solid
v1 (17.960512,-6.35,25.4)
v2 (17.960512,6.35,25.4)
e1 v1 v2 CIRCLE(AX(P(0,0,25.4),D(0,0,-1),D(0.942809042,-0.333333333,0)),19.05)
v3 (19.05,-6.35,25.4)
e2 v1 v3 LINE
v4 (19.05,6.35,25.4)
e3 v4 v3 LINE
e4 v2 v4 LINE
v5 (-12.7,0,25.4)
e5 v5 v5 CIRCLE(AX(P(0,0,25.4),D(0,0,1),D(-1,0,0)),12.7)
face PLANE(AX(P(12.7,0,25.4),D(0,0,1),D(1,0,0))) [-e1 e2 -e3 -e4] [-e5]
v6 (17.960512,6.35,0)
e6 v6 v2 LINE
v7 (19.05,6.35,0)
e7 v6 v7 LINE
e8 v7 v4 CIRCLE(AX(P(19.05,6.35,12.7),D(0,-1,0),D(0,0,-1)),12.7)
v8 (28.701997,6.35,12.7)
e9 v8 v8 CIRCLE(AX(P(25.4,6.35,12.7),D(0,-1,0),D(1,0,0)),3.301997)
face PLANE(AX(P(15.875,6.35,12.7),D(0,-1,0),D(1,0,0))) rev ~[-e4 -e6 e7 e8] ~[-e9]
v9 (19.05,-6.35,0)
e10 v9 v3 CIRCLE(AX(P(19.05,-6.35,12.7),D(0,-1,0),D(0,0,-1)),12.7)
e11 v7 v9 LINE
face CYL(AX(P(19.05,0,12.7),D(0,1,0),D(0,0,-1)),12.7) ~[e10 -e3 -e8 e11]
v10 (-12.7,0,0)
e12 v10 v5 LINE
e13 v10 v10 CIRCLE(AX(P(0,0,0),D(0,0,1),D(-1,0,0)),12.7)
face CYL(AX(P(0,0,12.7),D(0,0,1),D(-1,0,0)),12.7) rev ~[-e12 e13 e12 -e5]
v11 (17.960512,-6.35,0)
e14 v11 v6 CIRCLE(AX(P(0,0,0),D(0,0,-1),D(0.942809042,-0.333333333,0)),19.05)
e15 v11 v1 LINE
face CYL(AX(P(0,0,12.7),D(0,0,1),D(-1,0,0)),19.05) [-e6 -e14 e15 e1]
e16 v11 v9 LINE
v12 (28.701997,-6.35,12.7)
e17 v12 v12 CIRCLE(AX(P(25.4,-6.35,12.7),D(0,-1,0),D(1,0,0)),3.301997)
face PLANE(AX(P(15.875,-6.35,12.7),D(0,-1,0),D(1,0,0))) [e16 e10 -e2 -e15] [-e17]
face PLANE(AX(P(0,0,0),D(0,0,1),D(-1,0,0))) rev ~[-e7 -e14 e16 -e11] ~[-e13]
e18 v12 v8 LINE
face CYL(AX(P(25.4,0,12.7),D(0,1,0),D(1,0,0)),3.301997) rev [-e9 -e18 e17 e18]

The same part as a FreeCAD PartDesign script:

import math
import FreeCAD as App
import Part
import Sketcher
Q = App.Units.Quantity

doc = App.newDocument("Part")
body = doc.addObject("PartDesign::Body", "Body")

# Sketch on XZ plane
sketch1 = body.newObject("Sketcher::SketchObject", "Sketch")
sketch1.AttachmentSupport = (doc.getObject("XZ_Plane"), [""])
sketch1.MapMode = "FlatFace"
sketch1.addGeometry([
    Part.LineSegment(App.Vector(-19, 25, 0), App.Vector(-19, 0, 0)),
    Part.LineSegment(App.Vector(-19, 0, 0), App.Vector(-13, 0, 0)),
    Part.LineSegment(App.Vector(-13, 0, 0), App.Vector(-13, 25, 0)),
    Part.LineSegment(App.Vector(-13, 25, 0), App.Vector(-19, 25, 0)),
], False)
sketch1.addConstraint([
    Sketcher.Constraint("Coincident", 0, 2, 1, 1),
    Sketcher.Constraint("Coincident", 1, 2, 2, 1),
    Sketcher.Constraint("Coincident", 2, 2, 3, 1),
    Sketcher.Constraint("Coincident", 3, 2, 0, 1),
    Sketcher.Constraint("Vertical", 0),
    Sketcher.Constraint("Horizontal", 1),
    Sketcher.Constraint("Vertical", 2),
    Sketcher.Constraint("Horizontal", 3),
    Sketcher.Constraint("PointOnObject", 0, 2, -1),
    Sketcher.Constraint("DistanceY", 0, 2, 0, 1, Q("1 in")),
    Sketcher.Constraint("DistanceX", 1, 1, 1, 2, Q("0.25 in")),
    Sketcher.Constraint("DistanceX", 1, 2, -1, 1, Q("0.5 in")),
])
revolution = body.newObject("PartDesign::Revolution", "Revolution")
revolution.Profile = sketch1
revolution.ReferenceAxis = (sketch1, ["V_Axis"])
revolution.Angle = 360

# Sketch on XZ plane
sketch2 = body.newObject("Sketcher::SketchObject", "Sketch001")
sketch2.AttachmentSupport = (doc.getObject("XZ_Plane"), [""])
sketch2.MapMode = "FlatFace"
sketch2.addGeometry([
    Part.LineSegment(App.Vector(12.7, 25.4, 0), App.Vector(12.7, 0, 0)),  # 0
    Part.LineSegment(App.Vector(12.7, 0, 0), App.Vector(19.1, 0, 0)),  # 1
    Part.ArcOfCircle(Part.Circle(App.Vector(19.1, 12.7, 0), App.Vector(0, 0, 1), 12.7), math.radians(-90), math.radians(90)),  # 2
    Part.LineSegment(App.Vector(19.1, 25.4, 0), App.Vector(12.7, 25.4, 0)),  # 3
    Part.Circle(App.Vector(25.4, 12.7, 0), App.Vector(0, 0, 1), 3.3),  # 4
], False)
sketch2.addConstraint([
    Sketcher.Constraint("Coincident", 0, 2, 1, 1),
    Sketcher.Constraint("Tangent", 1, 2, 2, 1),
    Sketcher.Constraint("Tangent", 2, 2, 3, 1),
    Sketcher.Constraint("Coincident", 3, 2, 0, 1),
    Sketcher.Constraint("Vertical", 0),
    Sketcher.Constraint("Horizontal", 1),
    Sketcher.Constraint("Horizontal", 3),
    Sketcher.Constraint("PointOnObject", 0, 2, -1),
    Sketcher.Constraint("Horizontal", 2, 3, 4, 3),
    Sketcher.Constraint("Radius", 2, Q("0.5 in")),
    Sketcher.Constraint("DistanceX", -1, 1, 4, 3, Q("1 in")),
    Sketcher.Constraint("DistanceX", 1, 1, 1, 2, Q("0.25 in")),
    Sketcher.Constraint("DistanceX", -1, 1, 0, 2, Q("0.5 in")),
    Sketcher.Constraint("Diameter", 4, 6.603994),
])
pad1 = body.newObject("PartDesign::Pad", "Pad")
pad1.Profile = sketch2
pad1.Type = "TwoLengths"
pad1.Length = Q("0.25 in")
pad1.Length2 = Q("0.25 in")

doc.recompute()
